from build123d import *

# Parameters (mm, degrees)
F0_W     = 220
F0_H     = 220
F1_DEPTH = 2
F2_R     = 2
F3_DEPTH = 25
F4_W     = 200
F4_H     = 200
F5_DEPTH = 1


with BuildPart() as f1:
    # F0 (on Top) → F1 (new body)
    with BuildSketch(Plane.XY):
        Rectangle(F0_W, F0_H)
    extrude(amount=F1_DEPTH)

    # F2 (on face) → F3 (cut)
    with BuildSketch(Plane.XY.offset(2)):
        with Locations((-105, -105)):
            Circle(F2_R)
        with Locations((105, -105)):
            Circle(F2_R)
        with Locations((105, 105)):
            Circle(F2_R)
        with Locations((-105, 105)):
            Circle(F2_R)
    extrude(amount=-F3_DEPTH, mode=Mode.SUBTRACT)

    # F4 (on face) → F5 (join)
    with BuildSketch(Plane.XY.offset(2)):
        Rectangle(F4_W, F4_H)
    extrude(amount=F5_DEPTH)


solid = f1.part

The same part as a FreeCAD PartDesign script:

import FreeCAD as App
import Part
import Sketcher
from FreeCAD import Vector


def add_polygon(sketch, points):
    """Adds a closed chain of lines whose ends are joined by coincident constraints."""
    first, n = sketch.GeometryCount, len(points)
    for a, b in zip(points, points[1:] + points[:1]):
        sketch.addGeometry(Part.LineSegment(App.Vector(*a, 0), App.Vector(*b, 0)), False)
    for i in range(n):
        sketch.addConstraint(Sketcher.Constraint("Coincident", first + i, 2, first + (i + 1) % n, 1))

doc = App.newDocument("Part")
body = doc.addObject("PartDesign::Body", "Body")

# Sketch on XY plane
sketch1 = body.newObject("Sketcher::SketchObject", "Sketch")
sketch1.AttachmentSupport = (doc.getObject("XY_Plane"), [""])
sketch1.MapMode = "FlatFace"
add_polygon(sketch1, [(-110, 110), (-110, -110), (110, -110), (110, 110)])  # lines 0-3
sketch1.addConstraint([
    Sketcher.Constraint("Vertical", 0),
    Sketcher.Constraint("Horizontal", 1),
    Sketcher.Constraint("Vertical", 2),
    Sketcher.Constraint("Horizontal", 3),
    Sketcher.Constraint("Symmetric", 0, 2, 2, 2, -1, 1),
    Sketcher.Constraint("Equal", 3, 0),
    Sketcher.Constraint("DistanceX", 1, 1, 1, 2, 220.0),
])
pad1 = body.newObject("PartDesign::Pad", "Pad")
pad1.Profile = sketch1
pad1.Length = 2

# Sketch on XY plane
sketch2 = body.newObject("Sketcher::SketchObject", "Sketch001")
sketch2.AttachmentSupport = (doc.getObject("XY_Plane"), [""])
sketch2.MapMode = "FlatFace"
sketch2.AttachmentOffset = App.Placement(Vector(0, 0, 2), App.Rotation())
sketch2.addGeometry([
    Part.Circle(Vector(-105, -105, 0), Vector(0, 0, 1), 2),
    Part.Circle(Vector(105, -105, 0), Vector(0, 0, 1), 2),
    Part.Circle(Vector(105, 105, 0), Vector(0, 0, 1), 2),
    Part.Circle(Vector(-105, 105, 0), Vector(0, 0, 1), 2),
], False)
sketch2.addConstraint([
    Sketcher.Constraint("Equal", 0, 1),
    Sketcher.Constraint("Equal", 1, 2),
    Sketcher.Constraint("Equal", 2, 3),
    Sketcher.Constraint("Symmetric", 0, 3, 2, 3, -1, 1),
    Sketcher.Constraint("Symmetric", 1, 3, 3, 3, -1, 1),
    Sketcher.Constraint("Symmetric", 0, 3, 1, 3, -2),
    Sketcher.Constraint("Diameter", 0, 4.0),
    Sketcher.Constraint("DistanceX", 0, 3, -1, 1, 105.0),
    Sketcher.Constraint("DistanceY", 0, 3, -1, 1, 105.0),
])
pocket1 = body.newObject("PartDesign::Pocket", "Pocket")
pocket1.Profile = sketch2
pocket1.Length = 25

# Sketch on XY plane
sketch3 = body.newObject("Sketcher::SketchObject", "Sketch002")
sketch3.AttachmentSupport = (doc.getObject("XY_Plane"), [""])
sketch3.MapMode = "FlatFace"
sketch3.AttachmentOffset = App.Placement(Vector(0, 0, 2), App.Rotation())
add_polygon(sketch3, [(-100, 100), (-100, -100), (100, -100), (100, 100)])  # lines 0-3
sketch3.addConstraint([
    Sketcher.Constraint("Vertical", 0),
    Sketcher.Constraint("Horizontal", 1),
    Sketcher.Constraint("Vertical", 2),
    Sketcher.Constraint("Horizontal", 3),
    Sketcher.Constraint("Symmetric", 0, 2, 2, 2, -1, 1),
    Sketcher.Constraint("Equal", 3, 0),
    Sketcher.Constraint("DistanceX", 1, 1, 1, 2, 200.0),
])
pad2 = body.newObject("PartDesign::Pad", "Pad001")
pad2.Profile = sketch3
pad2.Length = 1

doc.recompute()
